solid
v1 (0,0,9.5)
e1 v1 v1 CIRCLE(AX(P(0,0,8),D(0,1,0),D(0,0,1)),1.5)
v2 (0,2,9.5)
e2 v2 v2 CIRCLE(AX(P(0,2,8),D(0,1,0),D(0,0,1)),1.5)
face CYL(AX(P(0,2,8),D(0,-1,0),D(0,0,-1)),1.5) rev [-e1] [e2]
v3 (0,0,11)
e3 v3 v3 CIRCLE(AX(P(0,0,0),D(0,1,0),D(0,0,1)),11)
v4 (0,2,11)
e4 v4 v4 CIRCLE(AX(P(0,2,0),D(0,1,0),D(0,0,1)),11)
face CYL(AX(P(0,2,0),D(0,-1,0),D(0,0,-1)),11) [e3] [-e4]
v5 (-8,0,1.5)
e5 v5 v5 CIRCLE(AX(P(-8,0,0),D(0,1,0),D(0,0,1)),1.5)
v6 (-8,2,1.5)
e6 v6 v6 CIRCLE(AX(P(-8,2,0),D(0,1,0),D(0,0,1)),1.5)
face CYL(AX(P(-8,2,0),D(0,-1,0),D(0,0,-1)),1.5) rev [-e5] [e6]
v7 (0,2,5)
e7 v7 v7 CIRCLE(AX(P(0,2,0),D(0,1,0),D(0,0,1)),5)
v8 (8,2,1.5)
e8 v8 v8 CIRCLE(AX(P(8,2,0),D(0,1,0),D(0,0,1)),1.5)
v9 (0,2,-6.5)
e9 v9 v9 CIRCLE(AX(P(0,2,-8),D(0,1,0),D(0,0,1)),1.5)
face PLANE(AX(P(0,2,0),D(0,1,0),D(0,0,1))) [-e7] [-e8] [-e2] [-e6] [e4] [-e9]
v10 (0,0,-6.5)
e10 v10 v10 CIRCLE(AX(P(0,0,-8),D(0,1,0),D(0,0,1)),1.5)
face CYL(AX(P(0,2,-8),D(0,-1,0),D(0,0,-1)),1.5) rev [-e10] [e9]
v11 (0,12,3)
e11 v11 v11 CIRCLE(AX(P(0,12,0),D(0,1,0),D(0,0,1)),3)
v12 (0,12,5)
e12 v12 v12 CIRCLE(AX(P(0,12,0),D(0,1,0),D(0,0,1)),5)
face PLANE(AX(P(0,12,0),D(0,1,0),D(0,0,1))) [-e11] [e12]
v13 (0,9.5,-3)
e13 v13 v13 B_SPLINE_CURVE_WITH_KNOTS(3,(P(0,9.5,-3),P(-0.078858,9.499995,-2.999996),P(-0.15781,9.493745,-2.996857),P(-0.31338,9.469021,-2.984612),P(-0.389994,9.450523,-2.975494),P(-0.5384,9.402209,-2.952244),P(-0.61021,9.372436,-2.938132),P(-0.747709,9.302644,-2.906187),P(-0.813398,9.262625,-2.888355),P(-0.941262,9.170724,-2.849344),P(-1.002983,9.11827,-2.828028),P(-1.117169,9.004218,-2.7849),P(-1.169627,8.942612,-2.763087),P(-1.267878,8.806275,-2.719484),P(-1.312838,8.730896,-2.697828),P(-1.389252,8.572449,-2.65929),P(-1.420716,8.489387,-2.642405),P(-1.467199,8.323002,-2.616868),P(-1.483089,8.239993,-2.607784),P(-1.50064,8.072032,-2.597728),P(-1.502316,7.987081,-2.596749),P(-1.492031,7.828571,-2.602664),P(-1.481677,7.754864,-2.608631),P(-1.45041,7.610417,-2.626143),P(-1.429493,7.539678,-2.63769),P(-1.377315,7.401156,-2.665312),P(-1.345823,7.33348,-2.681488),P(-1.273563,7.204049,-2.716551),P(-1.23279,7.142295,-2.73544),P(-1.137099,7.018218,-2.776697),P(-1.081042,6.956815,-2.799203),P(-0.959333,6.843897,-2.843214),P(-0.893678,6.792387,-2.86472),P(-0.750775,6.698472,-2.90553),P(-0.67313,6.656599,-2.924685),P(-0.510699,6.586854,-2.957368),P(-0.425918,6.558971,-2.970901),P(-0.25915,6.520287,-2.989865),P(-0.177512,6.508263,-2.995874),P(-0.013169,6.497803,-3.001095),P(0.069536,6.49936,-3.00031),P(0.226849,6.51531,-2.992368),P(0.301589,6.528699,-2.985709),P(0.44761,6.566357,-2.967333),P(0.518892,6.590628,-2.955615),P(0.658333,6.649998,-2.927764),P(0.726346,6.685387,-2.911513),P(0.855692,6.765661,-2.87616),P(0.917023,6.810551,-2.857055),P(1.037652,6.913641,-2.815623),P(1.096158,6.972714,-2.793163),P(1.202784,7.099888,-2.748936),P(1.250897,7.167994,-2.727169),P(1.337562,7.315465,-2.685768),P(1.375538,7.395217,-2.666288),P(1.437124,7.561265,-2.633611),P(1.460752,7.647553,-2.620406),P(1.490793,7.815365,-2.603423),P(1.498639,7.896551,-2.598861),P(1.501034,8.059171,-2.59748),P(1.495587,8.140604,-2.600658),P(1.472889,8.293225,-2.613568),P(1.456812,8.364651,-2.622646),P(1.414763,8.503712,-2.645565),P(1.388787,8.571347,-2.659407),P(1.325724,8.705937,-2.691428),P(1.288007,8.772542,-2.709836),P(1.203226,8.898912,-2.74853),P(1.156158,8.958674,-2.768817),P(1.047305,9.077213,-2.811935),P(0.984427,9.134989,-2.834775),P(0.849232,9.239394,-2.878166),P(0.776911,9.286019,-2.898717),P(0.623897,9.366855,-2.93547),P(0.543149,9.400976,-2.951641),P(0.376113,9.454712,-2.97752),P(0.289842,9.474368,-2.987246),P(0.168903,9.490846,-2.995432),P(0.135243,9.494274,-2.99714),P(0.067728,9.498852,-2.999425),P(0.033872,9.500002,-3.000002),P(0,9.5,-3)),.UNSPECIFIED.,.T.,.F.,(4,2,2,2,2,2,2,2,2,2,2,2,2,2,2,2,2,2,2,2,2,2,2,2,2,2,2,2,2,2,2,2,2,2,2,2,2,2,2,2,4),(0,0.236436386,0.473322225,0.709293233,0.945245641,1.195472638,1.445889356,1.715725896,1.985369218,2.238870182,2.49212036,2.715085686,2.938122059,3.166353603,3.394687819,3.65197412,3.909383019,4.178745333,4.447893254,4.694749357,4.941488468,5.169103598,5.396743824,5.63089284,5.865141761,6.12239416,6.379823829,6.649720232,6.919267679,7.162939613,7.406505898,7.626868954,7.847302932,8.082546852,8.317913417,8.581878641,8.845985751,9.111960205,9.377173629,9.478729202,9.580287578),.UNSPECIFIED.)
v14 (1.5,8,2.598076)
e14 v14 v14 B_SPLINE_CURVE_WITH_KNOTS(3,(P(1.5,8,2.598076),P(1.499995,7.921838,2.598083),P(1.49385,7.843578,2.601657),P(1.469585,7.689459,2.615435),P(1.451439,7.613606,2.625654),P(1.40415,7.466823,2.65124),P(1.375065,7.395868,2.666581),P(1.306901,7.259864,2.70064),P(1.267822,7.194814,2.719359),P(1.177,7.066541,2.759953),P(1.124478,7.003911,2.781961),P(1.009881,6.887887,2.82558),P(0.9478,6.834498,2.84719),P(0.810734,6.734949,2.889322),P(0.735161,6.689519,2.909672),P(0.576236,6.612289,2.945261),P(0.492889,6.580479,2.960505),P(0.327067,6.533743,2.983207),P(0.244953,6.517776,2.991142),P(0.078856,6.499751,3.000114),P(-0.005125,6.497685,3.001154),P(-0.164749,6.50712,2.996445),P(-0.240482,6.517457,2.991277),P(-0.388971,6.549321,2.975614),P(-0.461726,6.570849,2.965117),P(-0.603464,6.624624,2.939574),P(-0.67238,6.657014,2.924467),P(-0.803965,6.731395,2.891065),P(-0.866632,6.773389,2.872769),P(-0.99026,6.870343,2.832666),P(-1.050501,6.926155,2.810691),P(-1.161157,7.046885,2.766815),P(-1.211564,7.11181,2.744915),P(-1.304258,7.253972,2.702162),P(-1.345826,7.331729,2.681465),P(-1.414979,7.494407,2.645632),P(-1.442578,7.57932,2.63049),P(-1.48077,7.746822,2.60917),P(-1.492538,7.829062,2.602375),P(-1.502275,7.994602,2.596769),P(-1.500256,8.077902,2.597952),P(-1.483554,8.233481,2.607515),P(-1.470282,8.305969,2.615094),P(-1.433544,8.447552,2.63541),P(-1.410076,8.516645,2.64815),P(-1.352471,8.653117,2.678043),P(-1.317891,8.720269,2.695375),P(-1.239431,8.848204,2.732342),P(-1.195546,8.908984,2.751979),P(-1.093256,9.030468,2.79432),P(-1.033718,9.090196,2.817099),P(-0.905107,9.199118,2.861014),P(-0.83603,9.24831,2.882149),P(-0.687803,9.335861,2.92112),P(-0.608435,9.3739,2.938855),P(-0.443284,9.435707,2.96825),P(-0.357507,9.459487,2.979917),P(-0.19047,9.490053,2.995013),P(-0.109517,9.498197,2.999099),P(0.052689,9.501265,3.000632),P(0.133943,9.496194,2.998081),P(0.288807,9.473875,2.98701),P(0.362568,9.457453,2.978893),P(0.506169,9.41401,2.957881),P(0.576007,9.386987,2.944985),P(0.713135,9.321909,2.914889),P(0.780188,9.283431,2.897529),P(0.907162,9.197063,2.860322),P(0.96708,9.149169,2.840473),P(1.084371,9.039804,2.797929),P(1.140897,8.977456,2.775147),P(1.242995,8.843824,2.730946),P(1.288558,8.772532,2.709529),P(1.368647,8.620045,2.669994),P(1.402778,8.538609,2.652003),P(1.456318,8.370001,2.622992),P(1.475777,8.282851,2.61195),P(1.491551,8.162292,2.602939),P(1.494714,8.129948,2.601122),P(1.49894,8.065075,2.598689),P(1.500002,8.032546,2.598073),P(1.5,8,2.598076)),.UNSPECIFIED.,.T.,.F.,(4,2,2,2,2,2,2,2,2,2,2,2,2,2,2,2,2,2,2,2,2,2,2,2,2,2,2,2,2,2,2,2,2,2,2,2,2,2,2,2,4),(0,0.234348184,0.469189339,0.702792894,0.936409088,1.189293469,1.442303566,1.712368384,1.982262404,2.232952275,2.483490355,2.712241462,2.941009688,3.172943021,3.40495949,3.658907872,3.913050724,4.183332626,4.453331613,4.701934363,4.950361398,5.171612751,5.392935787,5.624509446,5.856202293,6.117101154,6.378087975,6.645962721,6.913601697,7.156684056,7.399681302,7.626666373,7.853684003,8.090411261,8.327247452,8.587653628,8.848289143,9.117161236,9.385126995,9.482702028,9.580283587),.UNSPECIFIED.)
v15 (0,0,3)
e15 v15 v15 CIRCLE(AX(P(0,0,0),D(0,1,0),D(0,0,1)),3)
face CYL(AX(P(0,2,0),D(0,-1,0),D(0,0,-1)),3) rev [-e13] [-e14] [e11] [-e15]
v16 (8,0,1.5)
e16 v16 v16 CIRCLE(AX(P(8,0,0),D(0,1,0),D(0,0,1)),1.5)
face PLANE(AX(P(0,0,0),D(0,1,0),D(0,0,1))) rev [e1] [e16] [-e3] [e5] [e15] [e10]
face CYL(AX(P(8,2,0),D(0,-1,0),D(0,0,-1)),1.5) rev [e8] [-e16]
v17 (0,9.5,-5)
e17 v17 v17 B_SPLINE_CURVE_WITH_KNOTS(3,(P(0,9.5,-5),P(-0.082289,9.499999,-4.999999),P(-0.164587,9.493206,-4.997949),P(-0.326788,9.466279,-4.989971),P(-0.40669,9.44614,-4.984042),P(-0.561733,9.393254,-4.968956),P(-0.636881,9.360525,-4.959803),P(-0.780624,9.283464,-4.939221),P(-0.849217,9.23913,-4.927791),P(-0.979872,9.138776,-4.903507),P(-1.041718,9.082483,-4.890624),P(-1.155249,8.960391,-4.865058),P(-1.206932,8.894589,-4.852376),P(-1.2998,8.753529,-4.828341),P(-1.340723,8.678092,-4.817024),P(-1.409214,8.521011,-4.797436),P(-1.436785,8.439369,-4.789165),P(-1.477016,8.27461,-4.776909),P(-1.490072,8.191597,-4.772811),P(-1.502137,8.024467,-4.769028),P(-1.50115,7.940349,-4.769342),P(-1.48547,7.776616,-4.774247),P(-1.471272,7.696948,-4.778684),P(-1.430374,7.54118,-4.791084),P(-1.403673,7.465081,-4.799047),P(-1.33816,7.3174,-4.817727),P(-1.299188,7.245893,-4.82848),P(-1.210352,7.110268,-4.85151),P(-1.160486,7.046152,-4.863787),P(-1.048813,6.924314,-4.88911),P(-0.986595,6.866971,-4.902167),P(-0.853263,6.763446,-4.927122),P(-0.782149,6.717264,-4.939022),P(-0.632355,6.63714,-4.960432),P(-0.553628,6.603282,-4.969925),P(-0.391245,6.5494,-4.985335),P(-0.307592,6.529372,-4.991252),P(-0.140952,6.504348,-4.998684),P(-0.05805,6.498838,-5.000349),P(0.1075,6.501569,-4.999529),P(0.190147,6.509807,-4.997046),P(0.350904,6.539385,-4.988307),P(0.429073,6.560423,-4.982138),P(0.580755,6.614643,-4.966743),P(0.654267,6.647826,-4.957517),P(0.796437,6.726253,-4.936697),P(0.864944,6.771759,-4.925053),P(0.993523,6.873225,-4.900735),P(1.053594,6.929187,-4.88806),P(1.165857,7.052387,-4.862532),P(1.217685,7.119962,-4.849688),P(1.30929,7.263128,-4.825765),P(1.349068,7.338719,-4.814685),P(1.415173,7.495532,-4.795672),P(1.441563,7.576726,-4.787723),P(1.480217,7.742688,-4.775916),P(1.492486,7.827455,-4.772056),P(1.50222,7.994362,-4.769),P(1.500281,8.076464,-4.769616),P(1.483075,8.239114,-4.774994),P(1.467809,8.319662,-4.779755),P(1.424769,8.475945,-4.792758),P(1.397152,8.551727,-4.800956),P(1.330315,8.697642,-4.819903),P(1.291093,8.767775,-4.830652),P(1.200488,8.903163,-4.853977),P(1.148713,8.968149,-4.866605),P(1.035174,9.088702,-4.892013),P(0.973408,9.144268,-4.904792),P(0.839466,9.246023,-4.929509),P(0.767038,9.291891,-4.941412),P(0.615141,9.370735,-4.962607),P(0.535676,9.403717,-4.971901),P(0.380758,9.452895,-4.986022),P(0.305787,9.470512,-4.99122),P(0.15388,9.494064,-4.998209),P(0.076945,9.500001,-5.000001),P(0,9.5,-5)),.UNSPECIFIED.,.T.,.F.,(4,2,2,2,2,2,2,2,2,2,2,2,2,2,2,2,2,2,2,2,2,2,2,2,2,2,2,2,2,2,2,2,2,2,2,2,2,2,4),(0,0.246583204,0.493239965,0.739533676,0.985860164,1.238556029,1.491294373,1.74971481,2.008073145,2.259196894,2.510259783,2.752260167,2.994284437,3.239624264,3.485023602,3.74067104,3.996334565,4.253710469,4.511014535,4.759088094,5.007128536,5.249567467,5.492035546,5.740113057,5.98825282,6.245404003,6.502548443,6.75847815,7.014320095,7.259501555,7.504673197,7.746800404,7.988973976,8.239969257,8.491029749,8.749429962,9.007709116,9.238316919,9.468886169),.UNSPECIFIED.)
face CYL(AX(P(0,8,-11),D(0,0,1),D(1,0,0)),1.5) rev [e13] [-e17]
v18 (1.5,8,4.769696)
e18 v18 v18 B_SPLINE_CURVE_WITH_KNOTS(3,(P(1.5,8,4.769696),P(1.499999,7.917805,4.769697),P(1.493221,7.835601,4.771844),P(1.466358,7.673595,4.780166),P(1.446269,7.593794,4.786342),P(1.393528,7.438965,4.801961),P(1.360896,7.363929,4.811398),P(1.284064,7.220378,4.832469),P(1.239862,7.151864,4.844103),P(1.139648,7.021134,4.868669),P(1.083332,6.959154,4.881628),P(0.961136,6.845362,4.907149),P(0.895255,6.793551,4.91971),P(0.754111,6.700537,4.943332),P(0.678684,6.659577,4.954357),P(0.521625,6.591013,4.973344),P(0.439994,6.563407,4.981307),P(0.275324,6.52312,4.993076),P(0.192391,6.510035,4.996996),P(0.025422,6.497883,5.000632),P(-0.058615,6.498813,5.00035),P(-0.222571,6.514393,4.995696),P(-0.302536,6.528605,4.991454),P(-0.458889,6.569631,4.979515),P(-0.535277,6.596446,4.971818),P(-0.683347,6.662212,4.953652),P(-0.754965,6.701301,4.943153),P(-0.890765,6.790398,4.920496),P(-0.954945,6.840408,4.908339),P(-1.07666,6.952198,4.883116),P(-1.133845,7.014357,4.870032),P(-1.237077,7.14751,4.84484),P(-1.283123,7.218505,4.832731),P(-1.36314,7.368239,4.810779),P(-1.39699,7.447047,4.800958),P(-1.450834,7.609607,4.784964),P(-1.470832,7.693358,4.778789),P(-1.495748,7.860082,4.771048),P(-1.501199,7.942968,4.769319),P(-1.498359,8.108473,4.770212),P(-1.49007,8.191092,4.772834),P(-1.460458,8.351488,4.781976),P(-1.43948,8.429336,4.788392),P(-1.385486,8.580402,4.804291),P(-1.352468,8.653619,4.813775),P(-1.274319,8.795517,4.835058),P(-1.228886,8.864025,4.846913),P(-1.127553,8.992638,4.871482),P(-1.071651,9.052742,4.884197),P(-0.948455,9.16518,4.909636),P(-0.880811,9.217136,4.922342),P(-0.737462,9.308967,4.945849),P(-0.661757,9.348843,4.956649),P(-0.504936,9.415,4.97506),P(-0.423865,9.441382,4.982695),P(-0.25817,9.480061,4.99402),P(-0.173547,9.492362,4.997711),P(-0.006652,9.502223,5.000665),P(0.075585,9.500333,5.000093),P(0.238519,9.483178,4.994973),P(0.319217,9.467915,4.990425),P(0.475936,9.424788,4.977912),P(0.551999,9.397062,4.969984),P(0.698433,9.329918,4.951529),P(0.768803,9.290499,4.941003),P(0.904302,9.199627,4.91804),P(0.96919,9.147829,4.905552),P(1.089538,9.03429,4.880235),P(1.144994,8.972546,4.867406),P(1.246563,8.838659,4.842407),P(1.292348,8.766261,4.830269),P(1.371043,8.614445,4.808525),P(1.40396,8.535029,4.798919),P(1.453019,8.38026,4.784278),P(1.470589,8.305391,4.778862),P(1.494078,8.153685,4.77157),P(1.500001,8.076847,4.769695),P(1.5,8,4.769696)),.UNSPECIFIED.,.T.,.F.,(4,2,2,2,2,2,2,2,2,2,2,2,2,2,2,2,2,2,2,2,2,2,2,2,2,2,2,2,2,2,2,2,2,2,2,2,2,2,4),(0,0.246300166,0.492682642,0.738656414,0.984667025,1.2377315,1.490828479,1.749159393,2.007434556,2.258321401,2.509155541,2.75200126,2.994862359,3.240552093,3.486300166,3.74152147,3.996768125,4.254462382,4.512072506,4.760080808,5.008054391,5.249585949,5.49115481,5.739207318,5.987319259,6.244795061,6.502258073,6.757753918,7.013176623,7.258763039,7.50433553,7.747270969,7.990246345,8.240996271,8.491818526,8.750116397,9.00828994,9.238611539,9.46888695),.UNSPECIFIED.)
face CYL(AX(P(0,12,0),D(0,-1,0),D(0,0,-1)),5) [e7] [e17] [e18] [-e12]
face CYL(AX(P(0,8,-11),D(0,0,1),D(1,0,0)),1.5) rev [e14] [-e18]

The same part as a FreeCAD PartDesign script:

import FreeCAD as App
import Part
import Sketcher

doc = App.newDocument("Part")
body = doc.addObject("PartDesign::Body", "Body")

# Sketch on XZ plane
sketch1 = body.newObject("Sketcher::SketchObject", "Sketch")
sketch1.AttachmentSupport = (doc.getObject("XZ_Plane"), [""])
sketch1.MapMode = "FlatFace"
sketch1.addGeometry([
    Part.Circle(App.Vector(0, 0, 0), App.Vector(0, 0, 1), 11),  # 0
    Part.Circle(App.Vector(0, -8, 0), App.Vector(0, 0, 1), 1.5),  # 1
    Part.Circle(App.Vector(-8, 0, 0), App.Vector(0, 0, 1), 1.5),  # 2
    Part.Circle(App.Vector(8, 0, 0), App.Vector(0, 0, 1), 1.5),  # 3
    Part.Circle(App.Vector(0, 0, 0), App.Vector(0, 0, 1), 3),  # 4
    Part.Circle(App.Vector(0, 8, 0), App.Vector(0, 0, 1), 1.5),  # 5
], False)
sketch1.addConstraint([
    Sketcher.Constraint("Coincident", 0, 3, -1, 1),
    Sketcher.Constraint("Coincident", 4, 3, -1, 1),
    Sketcher.Constraint("Equal", 1, 2),
    Sketcher.Constraint("Equal", 2, 3),
    Sketcher.Constraint("Equal", 3, 5),
    Sketcher.Constraint("Symmetric", 2, 3, 3, 3, -1, 1),
    Sketcher.Constraint("Symmetric", 1, 3, 5, 3, -1, 1),
    Sketcher.Constraint("PointOnObject", 1, 3, -2),
    Sketcher.Constraint("PointOnObject", 2, 3, -1),
    Sketcher.Constraint("Diameter", 0, 22.0),
    Sketcher.Constraint("Diameter", 1, 3.0),
    Sketcher.Constraint("Diameter", 4, 6.0),
    Sketcher.Constraint("DistanceY", 1, 3, -1, 1, 8.0),
    Sketcher.Constraint("DistanceX", 2, 3, -1, 1, 8.0),
])
pad1 = body.newObject("PartDesign::Pad", "Pad")
pad1.Profile = sketch1
pad1.Length = 2
pad1.Reversed = True

# Sketch on XZ plane
sketch2 = body.newObject("Sketcher::SketchObject", "Sketch001")
sketch2.AttachmentSupport = (doc.getObject("XZ_Plane"), [""])
sketch2.MapMode = "FlatFace"
sketch2.AttachmentOffset = App.Placement(App.Vector(0, 0, -2), App.Rotation())
sketch2.addGeometry([
    Part.Circle(App.Vector(0, 0, 0), App.Vector(0, 0, 1), 5),
    Part.Circle(App.Vector(0, 0, 0), App.Vector(0, 0, 1), 3),
], False)
sketch2.addConstraint([
    Sketcher.Constraint("Coincident", 0, 3, -1, 1),
    Sketcher.Constraint("Coincident", 1, 3, -1, 1),
    Sketcher.Constraint("Diameter", 0, 10.0),
    Sketcher.Constraint("Diameter", 1, 6.0),
])
pad2 = body.newObject("PartDesign::Pad", "Pad001")
pad2.Profile = sketch2
pad2.Length = 10
pad2.Reversed = True

# Sketch on XY plane
sketch3 = body.newObject("Sketcher::SketchObject", "Sketch002")
sketch3.AttachmentSupport = (doc.getObject("XY_Plane"), [""])
sketch3.MapMode = "FlatFace"
sketch3.addGeometry(Part.Circle(App.Vector(0, 8, 0), App.Vector(0, 0, 1), 1.5), False)
sketch3.addConstraint([
    Sketcher.Constraint("PointOnObject", 0, 3, -2),
    Sketcher.Constraint("Diameter", 0, 3.0),
    Sketcher.Constraint("DistanceY", -1, 1, 0, 3, 8.0),
])
pocket1 = body.newObject("PartDesign::Pocket", "Pocket")
pocket1.Profile = sketch3
pocket1.Type = "ThroughAll"
pocket1.Midplane = True

doc.recompute()
